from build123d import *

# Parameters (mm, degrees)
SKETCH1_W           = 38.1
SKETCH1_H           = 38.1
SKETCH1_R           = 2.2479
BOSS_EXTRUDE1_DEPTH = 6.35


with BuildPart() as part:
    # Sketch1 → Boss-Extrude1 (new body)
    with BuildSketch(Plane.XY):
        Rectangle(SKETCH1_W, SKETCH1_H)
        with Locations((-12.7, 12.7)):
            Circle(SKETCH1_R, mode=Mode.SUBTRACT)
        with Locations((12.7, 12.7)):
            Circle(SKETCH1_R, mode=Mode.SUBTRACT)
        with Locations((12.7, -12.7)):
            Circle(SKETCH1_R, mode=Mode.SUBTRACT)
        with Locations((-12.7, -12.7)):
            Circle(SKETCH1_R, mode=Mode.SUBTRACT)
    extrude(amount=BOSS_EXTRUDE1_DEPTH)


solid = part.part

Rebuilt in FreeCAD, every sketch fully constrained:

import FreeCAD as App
import Part
import Sketcher
from FreeCAD import Vector
Q = App.Units.Quantity


def add_polygon(sketch, points):
    """Adds a closed chain of lines whose ends are joined by coincident constraints."""
    first, n = sketch.GeometryCount, len(points)
    for a, b in zip(points, points[1:] + points[:1]):
        sketch.addGeometry(Part.LineSegment(App.Vector(*a, 0), App.Vector(*b, 0)), False)
    for i in range(n):
        sketch.addConstraint(Sketcher.Constraint("Coincident", first + i, 2, first + (i + 1) % n, 1))

doc = App.newDocument("Part")
body = doc.addObject("PartDesign::Body", "Body")

# Sketch on XY plane
sketch1 = body.newObject("Sketcher::SketchObject", "Sketch")
sketch1.AttachmentSupport = (doc.getObject("XY_Plane"), [""])
sketch1.MapMode = "FlatFace"
add_polygon(sketch1, [(-19.05, 19.05), (-19.05, -19.05), (19.05, -19.05), (19.05, 19.05)])  # lines 0-3
sketch1.addGeometry(Part.Circle(Vector(-12.7, -12.7, 0), Vector(0, 0, 1), 2.2479), False)  # 4
sketch1.addGeometry(Part.Circle(Vector(12.7, -12.7, 0), Vector(0, 0, 1), 2.2479), False)  # 5
sketch1.addGeometry(Part.Circle(Vector(-12.7, 12.7, 0), Vector(0, 0, 1), 2.2479), False)  # 6
sketch1.addGeometry(Part.Circle(Vector(12.7, 12.7, 0), Vector(0, 0, 1), 2.2479), False)  # 7
sketch1.addConstraint(Sketcher.Constraint("Vertical", 0))
sketch1.addConstraint(Sketcher.Constraint("Horizontal", 1))
sketch1.addConstraint(Sketcher.Constraint("Vertical", 2))
sketch1.addConstraint(Sketcher.Constraint("Horizontal", 3))
sketch1.addConstraint(Sketcher.Constraint("Equal", 4, 5))
sketch1.addConstraint(Sketcher.Constraint("Equal", 5, 6))
sketch1.addConstraint(Sketcher.Constraint("Equal", 6, 7))
sketch1.addConstraint(Sketcher.Constraint("Symmetric", 5, 3, 6, 3, -1, 1))
sketch1.addConstraint(Sketcher.Constraint("Symmetric", 4, 3, 7, 3, -1, 1))
sketch1.addConstraint(Sketcher.Constraint("Symmetric", 0, 2, 2, 2, -1, 1))
sketch1.addConstraint(Sketcher.Constraint("Symmetric", 4, 3, 5, 3, -2))
sketch1.addConstraint(Sketcher.Constraint("Equal", 3, 0))
sketch1.addConstraint(Sketcher.Constraint("Diameter", 4, Q("0.177 in")))
sketch1.addConstraint(Sketcher.Constraint("DistanceX", 1, 1, 1, 2, Q("1.5 in")))
sketch1.addConstraint(Sketcher.Constraint("DistanceX", 4, 3, 5, 3, Q("1 in")))
sketch1.addConstraint(Sketcher.Constraint("DistanceY", 4, 3, 6, 3, Q("1 in")))
pad1 = body.newObject("PartDesign::Pad", "Pad")
pad1.Profile = sketch1
pad1.Length = Q("0.25 in")

doc.recompute()
